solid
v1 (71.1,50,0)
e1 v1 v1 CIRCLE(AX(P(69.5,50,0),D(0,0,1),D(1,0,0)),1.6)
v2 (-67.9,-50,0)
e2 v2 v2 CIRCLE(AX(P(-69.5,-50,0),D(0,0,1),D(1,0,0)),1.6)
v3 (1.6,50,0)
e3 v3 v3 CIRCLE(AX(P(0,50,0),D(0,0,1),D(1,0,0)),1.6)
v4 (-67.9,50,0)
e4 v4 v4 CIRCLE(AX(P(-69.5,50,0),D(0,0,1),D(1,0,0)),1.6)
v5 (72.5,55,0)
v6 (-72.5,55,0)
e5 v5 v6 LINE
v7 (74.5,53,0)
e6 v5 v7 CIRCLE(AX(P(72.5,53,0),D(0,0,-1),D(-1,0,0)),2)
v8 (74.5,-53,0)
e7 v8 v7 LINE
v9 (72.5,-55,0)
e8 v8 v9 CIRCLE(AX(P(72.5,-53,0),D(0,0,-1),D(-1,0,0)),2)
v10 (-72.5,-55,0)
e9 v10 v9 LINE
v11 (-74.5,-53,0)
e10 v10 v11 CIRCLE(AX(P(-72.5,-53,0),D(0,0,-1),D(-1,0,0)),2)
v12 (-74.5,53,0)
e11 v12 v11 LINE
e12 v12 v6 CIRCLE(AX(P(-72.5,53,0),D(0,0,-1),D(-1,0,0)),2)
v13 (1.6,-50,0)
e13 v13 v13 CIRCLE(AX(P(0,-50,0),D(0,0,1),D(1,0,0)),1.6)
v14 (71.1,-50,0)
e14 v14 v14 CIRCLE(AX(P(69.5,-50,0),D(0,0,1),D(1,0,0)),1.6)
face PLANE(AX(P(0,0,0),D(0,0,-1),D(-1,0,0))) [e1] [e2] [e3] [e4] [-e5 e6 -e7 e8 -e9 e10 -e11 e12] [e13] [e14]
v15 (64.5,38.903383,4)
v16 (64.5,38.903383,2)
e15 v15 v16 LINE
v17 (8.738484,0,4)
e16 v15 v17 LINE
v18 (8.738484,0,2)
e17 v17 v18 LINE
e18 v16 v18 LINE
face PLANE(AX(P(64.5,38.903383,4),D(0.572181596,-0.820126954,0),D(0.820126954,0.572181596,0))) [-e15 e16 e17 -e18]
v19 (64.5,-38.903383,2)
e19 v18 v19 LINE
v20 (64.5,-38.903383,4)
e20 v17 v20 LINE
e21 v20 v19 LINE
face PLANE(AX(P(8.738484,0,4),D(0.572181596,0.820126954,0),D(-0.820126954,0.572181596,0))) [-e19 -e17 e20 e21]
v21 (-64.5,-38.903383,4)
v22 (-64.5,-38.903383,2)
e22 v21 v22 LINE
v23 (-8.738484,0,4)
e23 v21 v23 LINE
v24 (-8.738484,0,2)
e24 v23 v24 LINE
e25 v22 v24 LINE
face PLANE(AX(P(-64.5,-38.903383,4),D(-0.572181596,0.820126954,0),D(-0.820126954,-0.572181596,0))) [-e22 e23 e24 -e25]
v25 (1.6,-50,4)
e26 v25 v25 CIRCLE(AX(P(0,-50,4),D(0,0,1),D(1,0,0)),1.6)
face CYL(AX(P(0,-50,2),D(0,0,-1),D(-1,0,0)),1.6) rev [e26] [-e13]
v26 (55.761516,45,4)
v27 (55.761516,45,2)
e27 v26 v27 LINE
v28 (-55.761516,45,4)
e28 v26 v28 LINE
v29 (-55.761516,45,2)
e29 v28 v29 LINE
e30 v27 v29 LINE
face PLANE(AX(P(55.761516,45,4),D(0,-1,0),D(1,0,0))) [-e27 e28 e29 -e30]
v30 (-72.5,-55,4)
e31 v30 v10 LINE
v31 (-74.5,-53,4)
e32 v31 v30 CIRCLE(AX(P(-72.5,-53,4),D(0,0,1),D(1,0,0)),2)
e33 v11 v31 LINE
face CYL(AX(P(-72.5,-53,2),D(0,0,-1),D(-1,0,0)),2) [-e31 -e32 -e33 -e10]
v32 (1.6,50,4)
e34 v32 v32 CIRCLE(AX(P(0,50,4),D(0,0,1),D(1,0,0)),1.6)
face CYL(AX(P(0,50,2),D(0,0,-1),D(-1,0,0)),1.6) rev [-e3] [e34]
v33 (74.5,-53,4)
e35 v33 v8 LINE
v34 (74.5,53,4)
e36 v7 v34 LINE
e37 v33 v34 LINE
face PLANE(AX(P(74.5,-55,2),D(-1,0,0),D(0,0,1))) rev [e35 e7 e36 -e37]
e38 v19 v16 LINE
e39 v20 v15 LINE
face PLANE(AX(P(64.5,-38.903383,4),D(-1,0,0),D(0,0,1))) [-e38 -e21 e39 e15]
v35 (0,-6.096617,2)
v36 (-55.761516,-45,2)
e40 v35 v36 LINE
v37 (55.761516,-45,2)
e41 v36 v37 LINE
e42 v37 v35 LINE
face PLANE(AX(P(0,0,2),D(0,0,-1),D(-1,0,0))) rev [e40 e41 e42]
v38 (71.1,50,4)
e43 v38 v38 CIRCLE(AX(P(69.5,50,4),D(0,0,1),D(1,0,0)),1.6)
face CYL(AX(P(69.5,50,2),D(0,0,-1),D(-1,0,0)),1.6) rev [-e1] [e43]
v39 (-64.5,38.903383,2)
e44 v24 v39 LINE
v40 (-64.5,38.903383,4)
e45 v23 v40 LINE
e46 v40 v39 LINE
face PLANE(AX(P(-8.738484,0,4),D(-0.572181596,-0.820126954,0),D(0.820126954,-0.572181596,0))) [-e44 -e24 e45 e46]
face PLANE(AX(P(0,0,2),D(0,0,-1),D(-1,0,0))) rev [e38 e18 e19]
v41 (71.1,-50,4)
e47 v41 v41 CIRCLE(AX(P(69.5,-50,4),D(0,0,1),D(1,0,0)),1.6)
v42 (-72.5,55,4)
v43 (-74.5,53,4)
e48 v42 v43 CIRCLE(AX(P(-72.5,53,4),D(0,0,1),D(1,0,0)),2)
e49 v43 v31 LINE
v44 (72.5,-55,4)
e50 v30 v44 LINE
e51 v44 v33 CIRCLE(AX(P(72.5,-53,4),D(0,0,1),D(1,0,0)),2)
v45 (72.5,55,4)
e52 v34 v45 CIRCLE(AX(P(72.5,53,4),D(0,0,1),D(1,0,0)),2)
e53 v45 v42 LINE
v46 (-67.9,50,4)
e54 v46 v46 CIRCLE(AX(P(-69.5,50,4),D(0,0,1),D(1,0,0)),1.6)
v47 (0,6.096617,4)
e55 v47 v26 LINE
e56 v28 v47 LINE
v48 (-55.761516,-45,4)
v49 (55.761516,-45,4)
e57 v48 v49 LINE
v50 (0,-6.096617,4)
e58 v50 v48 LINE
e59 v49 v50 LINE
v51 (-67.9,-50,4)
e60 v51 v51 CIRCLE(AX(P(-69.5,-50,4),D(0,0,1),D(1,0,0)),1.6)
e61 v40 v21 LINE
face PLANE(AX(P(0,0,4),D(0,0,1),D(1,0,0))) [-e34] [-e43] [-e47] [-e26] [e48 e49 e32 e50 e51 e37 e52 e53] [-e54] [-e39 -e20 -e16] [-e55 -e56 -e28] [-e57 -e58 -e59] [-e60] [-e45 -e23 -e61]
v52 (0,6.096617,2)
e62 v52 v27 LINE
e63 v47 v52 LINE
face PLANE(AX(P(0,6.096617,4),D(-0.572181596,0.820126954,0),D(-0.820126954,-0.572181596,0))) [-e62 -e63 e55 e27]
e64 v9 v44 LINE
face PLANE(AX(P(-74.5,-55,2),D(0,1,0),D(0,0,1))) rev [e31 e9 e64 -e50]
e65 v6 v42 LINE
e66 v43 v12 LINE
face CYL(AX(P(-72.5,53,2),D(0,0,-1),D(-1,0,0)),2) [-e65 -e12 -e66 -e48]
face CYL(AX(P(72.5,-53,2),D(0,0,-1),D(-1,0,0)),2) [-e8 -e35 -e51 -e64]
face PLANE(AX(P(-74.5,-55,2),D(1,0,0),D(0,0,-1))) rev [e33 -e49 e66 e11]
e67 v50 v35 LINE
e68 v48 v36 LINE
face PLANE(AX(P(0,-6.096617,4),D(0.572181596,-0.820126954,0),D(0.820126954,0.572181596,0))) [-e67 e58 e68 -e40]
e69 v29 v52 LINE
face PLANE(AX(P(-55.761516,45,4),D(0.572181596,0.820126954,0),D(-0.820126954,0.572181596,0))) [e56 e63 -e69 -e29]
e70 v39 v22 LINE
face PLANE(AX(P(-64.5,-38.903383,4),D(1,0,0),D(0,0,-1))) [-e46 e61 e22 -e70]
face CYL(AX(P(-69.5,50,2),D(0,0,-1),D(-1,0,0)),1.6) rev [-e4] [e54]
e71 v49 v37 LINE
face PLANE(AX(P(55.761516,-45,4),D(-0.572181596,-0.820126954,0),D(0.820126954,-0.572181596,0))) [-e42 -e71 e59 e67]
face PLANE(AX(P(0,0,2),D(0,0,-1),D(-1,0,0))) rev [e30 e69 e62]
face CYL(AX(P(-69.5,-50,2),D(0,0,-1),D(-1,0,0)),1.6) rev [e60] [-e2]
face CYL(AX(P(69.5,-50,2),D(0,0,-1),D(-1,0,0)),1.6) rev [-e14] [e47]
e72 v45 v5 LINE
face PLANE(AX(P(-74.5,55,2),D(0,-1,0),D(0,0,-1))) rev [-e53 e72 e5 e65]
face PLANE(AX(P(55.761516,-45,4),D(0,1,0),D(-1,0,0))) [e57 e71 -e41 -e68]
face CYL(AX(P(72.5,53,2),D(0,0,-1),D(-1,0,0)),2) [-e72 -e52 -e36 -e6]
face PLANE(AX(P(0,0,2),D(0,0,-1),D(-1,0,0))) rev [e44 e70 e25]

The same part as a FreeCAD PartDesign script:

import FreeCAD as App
import Part
import Sketcher

V = App.Vector
Q = App.Units.Quantity


def edges_at(feature, points):
    """Names of the edges that pass closest to the given points."""
    edges = feature.Shape.Edges
    near = lambda p: min(range(len(edges)), key=lambda i: edges[i].distToShape(Part.Vertex(*p))[0])
    return sorted({f"Edge{near(p) + 1}" for p in points})


def add_polygon(sketch, points):
    """Adds a closed chain of lines whose ends are joined by coincident constraints."""
    first, n = sketch.GeometryCount, len(points)
    for a, b in zip(points, points[1:] + points[:1]):
        sketch.addGeometry(Part.LineSegment(App.Vector(*a, 0), App.Vector(*b, 0)), False)
    for i in range(n):
        sketch.addConstraint(Sketcher.Constraint("Coincident", first + i, 2, first + (i + 1) % n, 1))

doc = App.newDocument("Part")
params = doc.addObject("Spreadsheet::Sheet", "Params")
for row, (alias, value) in enumerate([
    ("sketch1_diameter", "3.2 mm"),
    ("sketch1_width", "149 mm"),
    ("sketch1_height", "110 mm"),
    ("pad1_length", "2 mm"),
    ("sketch2_diameter", "3.2 mm"),
    ("sketch2_width", "149 mm"),
    ("sketch2_height", "110 mm"),
    ("pad2_length", "2 mm"),
    ("fillet_radius", "2 mm"),
], start=1):
    params.set(f"A{row}", alias)
    params.set(f"B{row}", "=" + value)
    params.setAlias(f"B{row}", alias)

body = doc.addObject("PartDesign::Body", "Body")

sketch1 = body.newObject("Sketcher::SketchObject", "Sketch")
sketch1.AttachmentSupport = (doc.getObject("XY_Plane"), [""])
sketch1.MapMode = "FlatFace"
add_polygon(sketch1, [(-74.5, 55), (-74.5, -55), (74.5, -55), (74.5, 55)])
sketch1.addGeometry(Part.Circle(V(-69.5, -50, 0), V(0, 0, 1), 1.6), False)
sketch1.addGeometry(Part.Circle(V(0, -50, 0), V(0, 0, 1), 1.6), False)
sketch1.addGeometry(Part.Circle(V(69.5, -50, 0), V(0, 0, 1), 1.6), False)
sketch1.addGeometry(Part.Circle(V(-69.5, 50, 0), V(0, 0, 1), 1.6), False)
sketch1.addGeometry(Part.Circle(V(0, 50, 0), V(0, 0, 1), 1.6), False)
sketch1.addGeometry(Part.Circle(V(69.5, 50, 0), V(0, 0, 1), 1.6), False)
sketch1.addConstraint([
    Sketcher.Constraint("Vertical", 0),
    Sketcher.Constraint("Horizontal", 1),
    Sketcher.Constraint("Vertical", 2),
    Sketcher.Constraint("Horizontal", 3),
    Sketcher.Constraint("Equal", 4, 5),
    Sketcher.Constraint("Equal", 5, 6),
    Sketcher.Constraint("Equal", 6, 7),
    Sketcher.Constraint("Equal", 7, 8),
    Sketcher.Constraint("Equal", 8, 9),
    Sketcher.Constraint("Symmetric", 6, 3, 7, 3, -1, 1),
    Sketcher.Constraint("Symmetric", 5, 3, 8, 3, -1, 1),
    Sketcher.Constraint("Symmetric", 4, 3, 9, 3, -1, 1),
    Sketcher.Constraint("Symmetric", 0, 2, 2, 2, -1, 1),
    Sketcher.Constraint("Symmetric", 4, 3, 6, 3, -2),
    Sketcher.Constraint("PointOnObject", 5, 3, -2),
    Sketcher.Constraint("Horizontal", 4, 3, 5, 3),
    Sketcher.Constraint("Diameter", 4, Q("3.2 mm")),
    Sketcher.Constraint("DistanceX", 1, 1, 1, 2, Q("149 mm")),
    Sketcher.Constraint("DistanceY", 0, 2, 0, 1, Q("110 mm")),
    Sketcher.Constraint("DistanceY", 4, 3, -1, 1, Q("50 mm")),
    Sketcher.Constraint("DistanceX", 4, 3, 6, 3, Q("139 mm")),
])
sketch1.setExpression("Constraints[20]", "Params.sketch1_diameter")
sketch1.setExpression("Constraints[21]", "Params.sketch1_width")
sketch1.setExpression("Constraints[22]", "Params.sketch1_height")
pad1 = body.newObject("PartDesign::Pad", "Pad")
pad1.Profile = sketch1
pad1.setExpression("Length", "Params.pad1_length")

sketch2 = body.newObject("Sketcher::SketchObject", "Sketch001")
sketch2.AttachmentSupport = (doc.getObject("XY_Plane"), [""])
sketch2.MapMode = "FlatFace"
sketch2.AttachmentOffset = App.Placement(V(0, 0, 2), App.Rotation())
add_polygon(sketch2, [(-74.5, 55), (-74.5, -55), (74.5, -55), (74.5, 55)])
sketch2.addGeometry(Part.Circle(V(-69.5, -50, 0), V(0, 0, 1), 1.6), False)
sketch2.addGeometry(Part.Circle(V(0, -50, 0), V(0, 0, 1), 1.6), False)
sketch2.addGeometry(Part.Circle(V(69.5, -50, 0), V(0, 0, 1), 1.6), False)
add_polygon(sketch2, [(0, -6.096617), (55.761516, -45), (-55.761516, -45)])
add_polygon(sketch2, [(-8.738484, 0), (-64.5, -38.903383), (-64.5, 38.903383)])
sketch2.addGeometry(Part.Circle(V(-69.5, 50, 0), V(0, 0, 1), 1.6), False)
add_polygon(sketch2, [(-55.761516, 45), (55.761516, 45), (0, 6.096617)])
add_polygon(sketch2, [(64.5, 38.903383), (64.5, -38.903383), (8.738484, 0)])
sketch2.addGeometry(Part.Circle(V(0, 50, 0), V(0, 0, 1), 1.6), False)
sketch2.addGeometry(Part.Circle(V(69.5, 50, 0), V(0, 0, 1), 1.6), False)
sketch2.addConstraint([
    Sketcher.Constraint("Vertical", 0),
    Sketcher.Constraint("Horizontal", 1),
    Sketcher.Constraint("Vertical", 2),
    Sketcher.Constraint("Horizontal", 3),
    Sketcher.Constraint("Horizontal", 8),
    Sketcher.Constraint("Vertical", 11),
    Sketcher.Constraint("Horizontal", 14),
    Sketcher.Constraint("Vertical", 17),
    Sketcher.Constraint("Equal", 4, 5),
    Sketcher.Constraint("Equal", 5, 6),
    Sketcher.Constraint("Equal", 6, 13),
    Sketcher.Constraint("Equal", 13, 20),
    Sketcher.Constraint("Equal", 20, 21),
    Sketcher.Constraint("Symmetric", 6, 3, 13, 3, -1, 1),
    Sketcher.Constraint("Symmetric", 5, 3, 20, 3, -1, 1),
    Sketcher.Constraint("Symmetric", 4, 3, 21, 3, -1, 1),
    Sketcher.Constraint("Symmetric", 0, 2, 2, 2, -1, 1),
    Sketcher.Constraint("Symmetric", 8, 2, 14, 2, -1, 1),
    Sketcher.Constraint("Symmetric", 9, 2, 15, 2, -1, 1),
    Sketcher.Constraint("Symmetric", 11, 2, 17, 2, -1, 1),
    Sketcher.Constraint("Symmetric", 12, 2, 18, 2, -1, 1),
    Sketcher.Constraint("Symmetric", 4, 3, 6, 3, -2),
    Sketcher.Constraint("PointOnObject", 5, 3, -2),
    Sketcher.Constraint("PointOnObject", 9, 2, -2),
    Sketcher.Constraint("PointOnObject", 12, 2, -1),
    Sketcher.Constraint("Parallel", 9, 10),
    Sketcher.Constraint("Parallel", 7, 12),
    Sketcher.Constraint("Parallel", 12, 16),
    Sketcher.Constraint("Parallel", 15, 19),
    Sketcher.Constraint("Horizontal", 4, 3, 5, 3),
    Sketcher.Constraint("Horizontal", 10, 2, 17, 2),
    Sketcher.Constraint("Equal", 9, 10),
    Sketcher.Constraint("Diameter", 4, Q("3.2 mm")),
    Sketcher.Constraint("DistanceX", 1, 1, 1, 2, Q("149 mm")),
    Sketcher.Constraint("DistanceY", 0, 2, 0, 1, Q("110 mm")),
    Sketcher.Constraint("DistanceY", 4, 3, -1, 1, Q("50 mm")),
    Sketcher.Constraint("DistanceY", 7, 2, -1, 1, Q("45 mm")),
    Sketcher.Constraint("DistanceX", 4, 3, 6, 3, Q("139 mm")),
    Sketcher.Constraint("DistanceX", 4, 3, 10, 2, Q("5 mm")),
    Sketcher.Constraint("DistanceX", 8, 2, 8, 1, Q("111.523031 mm")),
    Sketcher.Constraint("Distance", 7, Q("67.991322 mm")),
])
sketch2.setExpression("Constraints[48]", "Params.sketch2_diameter")
sketch2.setExpression("Constraints[49]", "Params.sketch2_width")
sketch2.setExpression("Constraints[50]", "Params.sketch2_height")
pad2 = body.newObject("PartDesign::Pad", "Pad001")
pad2.Profile = sketch2
pad2.setExpression("Length", "Params.pad2_length")
doc.recompute()

fillet = body.newObject("PartDesign::Fillet", "Fillet")
fillet.Base = (pad2, edges_at(pad2, [
    (74.5, -55, 2),
    (-74.5, -55, 2),
    (-74.5, 55, 2),
    (74.5, 55, 2),
]))
fillet.setExpression("Radius", "Params.fillet_radius")

doc.recompute()
